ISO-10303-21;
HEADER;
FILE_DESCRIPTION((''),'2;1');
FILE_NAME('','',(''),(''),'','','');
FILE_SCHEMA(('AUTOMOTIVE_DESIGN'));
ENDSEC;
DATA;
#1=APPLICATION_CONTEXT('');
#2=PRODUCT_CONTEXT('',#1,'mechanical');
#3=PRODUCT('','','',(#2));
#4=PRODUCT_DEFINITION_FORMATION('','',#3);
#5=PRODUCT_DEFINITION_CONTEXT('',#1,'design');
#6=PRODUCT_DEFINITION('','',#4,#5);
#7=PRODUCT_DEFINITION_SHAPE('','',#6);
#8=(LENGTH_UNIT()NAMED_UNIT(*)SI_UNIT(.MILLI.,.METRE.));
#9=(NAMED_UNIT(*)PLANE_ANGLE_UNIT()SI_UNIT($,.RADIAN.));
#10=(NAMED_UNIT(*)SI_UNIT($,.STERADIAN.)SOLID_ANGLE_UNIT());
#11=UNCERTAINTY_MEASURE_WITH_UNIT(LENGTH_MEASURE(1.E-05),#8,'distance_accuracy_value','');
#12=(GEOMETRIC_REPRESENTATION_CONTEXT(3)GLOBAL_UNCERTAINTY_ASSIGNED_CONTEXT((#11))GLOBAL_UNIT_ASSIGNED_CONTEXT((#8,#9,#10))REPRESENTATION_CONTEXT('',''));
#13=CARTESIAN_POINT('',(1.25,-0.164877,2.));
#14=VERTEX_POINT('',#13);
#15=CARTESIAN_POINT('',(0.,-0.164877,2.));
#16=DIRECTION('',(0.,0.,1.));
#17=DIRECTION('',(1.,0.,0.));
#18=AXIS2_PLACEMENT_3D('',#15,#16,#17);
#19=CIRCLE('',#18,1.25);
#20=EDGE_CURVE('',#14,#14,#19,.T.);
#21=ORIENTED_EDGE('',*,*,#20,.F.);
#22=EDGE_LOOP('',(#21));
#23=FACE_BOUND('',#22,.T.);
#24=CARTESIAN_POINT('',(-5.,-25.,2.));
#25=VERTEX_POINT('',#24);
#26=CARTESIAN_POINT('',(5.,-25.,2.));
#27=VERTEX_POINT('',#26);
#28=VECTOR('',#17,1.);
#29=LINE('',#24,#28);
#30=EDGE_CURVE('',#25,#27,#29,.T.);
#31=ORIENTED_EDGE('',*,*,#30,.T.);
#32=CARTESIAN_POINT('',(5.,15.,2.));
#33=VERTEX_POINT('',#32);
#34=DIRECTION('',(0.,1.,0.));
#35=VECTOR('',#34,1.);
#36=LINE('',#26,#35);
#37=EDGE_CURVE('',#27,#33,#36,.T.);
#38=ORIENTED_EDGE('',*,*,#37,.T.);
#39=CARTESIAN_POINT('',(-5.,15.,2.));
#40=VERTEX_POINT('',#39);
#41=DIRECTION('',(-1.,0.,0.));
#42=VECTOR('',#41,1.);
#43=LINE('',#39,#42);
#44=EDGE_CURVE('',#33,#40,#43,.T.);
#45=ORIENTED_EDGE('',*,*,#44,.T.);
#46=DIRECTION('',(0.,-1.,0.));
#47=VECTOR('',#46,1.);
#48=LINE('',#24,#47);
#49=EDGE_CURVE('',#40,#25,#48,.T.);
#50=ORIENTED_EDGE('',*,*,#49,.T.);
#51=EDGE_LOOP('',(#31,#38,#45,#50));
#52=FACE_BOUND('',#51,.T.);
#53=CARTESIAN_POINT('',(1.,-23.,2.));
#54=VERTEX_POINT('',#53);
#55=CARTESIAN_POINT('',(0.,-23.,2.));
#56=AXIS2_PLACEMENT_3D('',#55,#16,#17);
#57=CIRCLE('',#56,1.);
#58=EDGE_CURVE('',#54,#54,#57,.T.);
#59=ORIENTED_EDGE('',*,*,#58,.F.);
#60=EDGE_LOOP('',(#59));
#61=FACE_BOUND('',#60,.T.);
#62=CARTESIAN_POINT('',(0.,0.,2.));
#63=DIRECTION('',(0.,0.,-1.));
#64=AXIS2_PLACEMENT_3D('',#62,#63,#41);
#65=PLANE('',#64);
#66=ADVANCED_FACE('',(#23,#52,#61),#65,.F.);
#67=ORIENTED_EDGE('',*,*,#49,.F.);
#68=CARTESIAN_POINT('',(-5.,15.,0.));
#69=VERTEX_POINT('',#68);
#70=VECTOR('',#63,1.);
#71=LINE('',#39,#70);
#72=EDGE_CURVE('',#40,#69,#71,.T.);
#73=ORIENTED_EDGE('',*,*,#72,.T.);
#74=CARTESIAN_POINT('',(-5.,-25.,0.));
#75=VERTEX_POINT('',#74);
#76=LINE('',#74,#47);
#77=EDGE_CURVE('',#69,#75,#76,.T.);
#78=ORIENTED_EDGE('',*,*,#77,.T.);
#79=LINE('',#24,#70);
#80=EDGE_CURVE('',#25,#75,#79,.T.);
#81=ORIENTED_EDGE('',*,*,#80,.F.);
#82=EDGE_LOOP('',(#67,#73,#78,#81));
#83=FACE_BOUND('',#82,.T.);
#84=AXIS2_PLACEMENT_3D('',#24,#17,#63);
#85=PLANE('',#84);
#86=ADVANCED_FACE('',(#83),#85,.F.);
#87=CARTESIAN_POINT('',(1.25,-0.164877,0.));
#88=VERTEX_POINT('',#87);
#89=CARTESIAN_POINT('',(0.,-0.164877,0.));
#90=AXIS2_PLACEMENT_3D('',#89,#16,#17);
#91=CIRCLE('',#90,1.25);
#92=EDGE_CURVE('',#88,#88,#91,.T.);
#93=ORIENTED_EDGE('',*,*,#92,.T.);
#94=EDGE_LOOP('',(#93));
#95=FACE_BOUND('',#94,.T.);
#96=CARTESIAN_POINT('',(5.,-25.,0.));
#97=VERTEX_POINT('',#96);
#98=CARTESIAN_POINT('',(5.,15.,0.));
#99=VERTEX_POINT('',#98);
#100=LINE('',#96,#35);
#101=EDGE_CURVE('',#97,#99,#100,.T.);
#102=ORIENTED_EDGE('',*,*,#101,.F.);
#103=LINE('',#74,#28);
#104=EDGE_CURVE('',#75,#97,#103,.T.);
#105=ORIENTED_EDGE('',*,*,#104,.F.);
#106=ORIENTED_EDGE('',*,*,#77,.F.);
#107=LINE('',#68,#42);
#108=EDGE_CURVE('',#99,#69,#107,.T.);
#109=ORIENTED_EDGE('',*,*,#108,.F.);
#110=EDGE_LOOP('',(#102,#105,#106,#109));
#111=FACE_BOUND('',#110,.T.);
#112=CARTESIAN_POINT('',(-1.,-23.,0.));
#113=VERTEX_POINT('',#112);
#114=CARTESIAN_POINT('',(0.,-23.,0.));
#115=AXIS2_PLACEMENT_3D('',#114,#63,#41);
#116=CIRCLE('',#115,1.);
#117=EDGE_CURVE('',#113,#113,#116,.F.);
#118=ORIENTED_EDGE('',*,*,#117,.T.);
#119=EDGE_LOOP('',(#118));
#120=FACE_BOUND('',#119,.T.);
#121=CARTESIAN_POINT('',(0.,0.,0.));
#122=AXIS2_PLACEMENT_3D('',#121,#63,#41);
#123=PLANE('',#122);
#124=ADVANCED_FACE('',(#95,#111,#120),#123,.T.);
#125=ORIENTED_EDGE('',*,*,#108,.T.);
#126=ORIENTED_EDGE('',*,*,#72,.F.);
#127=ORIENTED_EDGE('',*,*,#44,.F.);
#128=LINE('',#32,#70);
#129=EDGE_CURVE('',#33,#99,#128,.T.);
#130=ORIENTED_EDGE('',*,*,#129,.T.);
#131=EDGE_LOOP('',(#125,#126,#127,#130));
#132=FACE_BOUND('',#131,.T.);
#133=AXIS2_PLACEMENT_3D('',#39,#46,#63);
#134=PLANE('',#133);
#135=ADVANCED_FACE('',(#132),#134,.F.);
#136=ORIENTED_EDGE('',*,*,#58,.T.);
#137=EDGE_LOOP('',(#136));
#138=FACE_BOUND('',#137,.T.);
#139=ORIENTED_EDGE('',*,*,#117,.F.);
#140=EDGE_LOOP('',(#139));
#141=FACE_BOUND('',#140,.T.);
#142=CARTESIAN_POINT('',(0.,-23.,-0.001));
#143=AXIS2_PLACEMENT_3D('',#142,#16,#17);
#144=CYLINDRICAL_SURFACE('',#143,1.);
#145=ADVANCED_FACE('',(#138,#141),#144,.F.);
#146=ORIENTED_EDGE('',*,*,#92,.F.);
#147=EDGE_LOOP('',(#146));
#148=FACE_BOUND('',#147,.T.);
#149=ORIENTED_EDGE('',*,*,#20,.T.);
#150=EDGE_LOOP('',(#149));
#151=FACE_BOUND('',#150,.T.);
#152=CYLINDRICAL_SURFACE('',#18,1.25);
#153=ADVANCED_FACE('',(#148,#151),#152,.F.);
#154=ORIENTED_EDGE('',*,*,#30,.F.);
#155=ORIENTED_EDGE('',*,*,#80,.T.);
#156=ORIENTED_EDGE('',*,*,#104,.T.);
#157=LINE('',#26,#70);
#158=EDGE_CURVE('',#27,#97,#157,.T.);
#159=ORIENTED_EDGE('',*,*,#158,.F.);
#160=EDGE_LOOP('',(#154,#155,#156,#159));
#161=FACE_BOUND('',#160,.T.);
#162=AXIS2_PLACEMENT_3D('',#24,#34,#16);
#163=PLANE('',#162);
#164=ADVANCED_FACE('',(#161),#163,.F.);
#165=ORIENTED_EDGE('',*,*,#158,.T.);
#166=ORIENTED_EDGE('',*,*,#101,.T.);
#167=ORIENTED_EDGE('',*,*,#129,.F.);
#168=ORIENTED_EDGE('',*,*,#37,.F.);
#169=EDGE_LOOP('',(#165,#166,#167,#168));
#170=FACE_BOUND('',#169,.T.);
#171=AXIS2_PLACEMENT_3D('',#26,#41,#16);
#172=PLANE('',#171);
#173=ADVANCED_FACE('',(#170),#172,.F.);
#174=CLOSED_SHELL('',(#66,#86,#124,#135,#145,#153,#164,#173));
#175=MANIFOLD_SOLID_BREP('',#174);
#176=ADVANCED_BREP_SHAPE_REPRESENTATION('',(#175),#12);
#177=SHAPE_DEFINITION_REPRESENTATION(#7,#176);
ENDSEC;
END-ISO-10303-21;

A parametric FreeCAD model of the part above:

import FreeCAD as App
import Part
import Sketcher

V = App.Vector


def add_polygon(sketch, points):
    """Adds a closed chain of lines whose ends are joined by coincident constraints."""
    first, n = sketch.GeometryCount, len(points)
    for a, b in zip(points, points[1:] + points[:1]):
        sketch.addGeometry(Part.LineSegment(App.Vector(*a, 0), App.Vector(*b, 0)), False)
    for i in range(n):
        sketch.addConstraint(Sketcher.Constraint("Coincident", first + i, 2, first + (i + 1) % n, 1))

doc = App.newDocument("Part")
params = doc.addObject("Spreadsheet::Sheet", "Params")
for row, (alias, value) in enumerate([
    ("sketch1_width", "10 mm"),
    ("sketch1_height", "40 mm"),
    ("pad1_length", "2 mm"),
    ("sketch2_diameter", "2.5 mm"),
    ("hole_diameter", "2.5 mm"),
    ("sketch3_diameter", "2 mm"),
], start=1):
    params.set(f"A{row}", alias)
    params.set(f"B{row}", "=" + value)
    params.setAlias(f"B{row}", alias)

body = doc.addObject("PartDesign::Body", "Body")

# Sketch on XY plane
sketch1 = body.newObject("Sketcher::SketchObject", "Sketch")
sketch1.AttachmentSupport = (doc.getObject("XY_Plane"), [""])
sketch1.MapMode = "FlatFace"
add_polygon(sketch1, [(-5, 15), (-5, -25), (5, -25), (5, 15)])  # lines 0-3
sketch1.addConstraint(Sketcher.Constraint("Vertical", 0))
sketch1.addConstraint(Sketcher.Constraint("Horizontal", 1))
sketch1.addConstraint(Sketcher.Constraint("Vertical", 2))
sketch1.addConstraint(Sketcher.Constraint("Horizontal", 3))
sketch1.addConstraint(Sketcher.Constraint("DistanceX", 1, 1, 1, 2, 10.0))
sketch1.addConstraint(Sketcher.Constraint("DistanceY", 0, 2, 0, 1, 40.0))
sketch1.addConstraint(Sketcher.Constraint("DistanceX", 0, 2, -1, 1, 5.0))
sketch1.addConstraint(Sketcher.Constraint("DistanceY", 0, 2, -1, 1, 25.0))
sketch1.setExpression("Constraints[8]", "Params.sketch1_width")
sketch1.setExpression("Constraints[9]", "Params.sketch1_height")
pad1 = body.newObject("PartDesign::Pad", "Pad")
pad1.Profile = sketch1
pad1.setExpression("Length", "Params.pad1_length")

# Sketch on XY plane
sketch2 = body.newObject("Sketcher::SketchObject", "Sketch001")
sketch2.AttachmentSupport = (doc.getObject("XY_Plane"), [""])
sketch2.MapMode = "FlatFace"
sketch2.AttachmentOffset = App.Placement(V(0, 0, 2), App.Rotation())
sketch2.addGeometry(Part.Circle(V(0, -0.164877, 0), V(0, 0, 1), 1.25), False)
sketch2.addConstraint(Sketcher.Constraint("PointOnObject", 0, 3, -2))
sketch2.addConstraint(Sketcher.Constraint("Diameter", 0, 2.5))
sketch2.addConstraint(Sketcher.Constraint("DistanceY", 0, 3, -1, 1, 0.164877))
sketch2.setExpression("Constraints[1]", "Params.sketch2_diameter")
doc.recompute()
hole = body.newObject("PartDesign::Hole", "Hole")
hole.Profile = sketch2
hole.ThreadType = "None"
hole.setExpression("Diameter", "Params.hole_diameter")
hole.DepthType = "ThroughAll"

# Sketch on XY plane
sketch3 = body.newObject("Sketcher::SketchObject", "Sketch002")
sketch3.AttachmentSupport = (doc.getObject("XY_Plane"), [""])
sketch3.MapMode = "FlatFace"
sketch3.AttachmentOffset = App.Placement(V(0, 0, 2), App.Rotation())
sketch3.addGeometry(Part.Circle(V(0, -23, 0), V(0, 0, 1), 1), False)
sketch3.addConstraint(Sketcher.Constraint("PointOnObject", 0, 3, -2))
sketch3.addConstraint(Sketcher.Constraint("Diameter", 0, 2.0))
sketch3.addConstraint(Sketcher.Constraint("DistanceY", 0, 3, -1, 1, 23.0))
sketch3.setExpression("Constraints[1]", "Params.sketch3_diameter")
pocket1 = body.newObject("PartDesign::Pocket", "Pocket")
pocket1.Profile = sketch3
pocket1.Type = "UpToFirst"

doc.recompute()
